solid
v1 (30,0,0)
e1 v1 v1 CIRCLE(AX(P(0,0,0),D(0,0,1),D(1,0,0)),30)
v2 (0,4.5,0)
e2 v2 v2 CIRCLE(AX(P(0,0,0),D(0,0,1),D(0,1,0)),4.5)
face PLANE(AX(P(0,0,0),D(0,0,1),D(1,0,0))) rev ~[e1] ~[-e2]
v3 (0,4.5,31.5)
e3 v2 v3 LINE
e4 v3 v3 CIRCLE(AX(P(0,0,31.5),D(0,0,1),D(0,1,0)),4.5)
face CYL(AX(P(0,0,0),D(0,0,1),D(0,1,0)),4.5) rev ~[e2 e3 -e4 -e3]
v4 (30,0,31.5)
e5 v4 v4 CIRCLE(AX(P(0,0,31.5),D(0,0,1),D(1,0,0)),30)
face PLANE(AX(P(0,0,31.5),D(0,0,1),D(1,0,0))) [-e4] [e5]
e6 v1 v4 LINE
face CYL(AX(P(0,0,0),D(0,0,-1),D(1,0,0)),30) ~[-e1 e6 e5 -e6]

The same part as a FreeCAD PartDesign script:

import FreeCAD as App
import Part
import Sketcher
from FreeCAD import Vector

doc = App.newDocument("Part")
body = doc.addObject("PartDesign::Body", "Body")

# Sketch on XY plane
sketch1 = body.newObject("Sketcher::SketchObject", "Sketch")
sketch1.AttachmentSupport = (doc.getObject("XY_Plane"), [""])
sketch1.MapMode = "FlatFace"
sketch1.addGeometry(Part.Circle(Vector(0, 0, 0), Vector(0, 0, 1), 30), False)
sketch1.addConstraint(Sketcher.Constraint("Coincident", 0, 3, -1, 1))
sketch1.addConstraint(Sketcher.Constraint("Diameter", 0, 60.0))
pad1 = body.newObject("PartDesign::Pad", "Pad")
pad1.Profile = sketch1
pad1.Length = 31.5

# Sketch on XY plane
sketch2 = body.newObject("Sketcher::SketchObject", "Sketch001")
sketch2.AttachmentSupport = (doc.getObject("XY_Plane"), [""])
sketch2.MapMode = "FlatFace"
sketch2.addGeometry(Part.Circle(Vector(0, 0, 0), Vector(0, 0, 1), 4.5), False)
sketch2.addConstraint(Sketcher.Constraint("Coincident", 0, 3, -1, 1))
sketch2.addConstraint(Sketcher.Constraint("Diameter", 0, 9.0))
doc.recompute()
hole = body.newObject("PartDesign::Hole", "Hole")
hole.Profile = sketch2
hole.ThreadType = "None"
hole.Diameter = 9
hole.DepthType = "ThroughAll"
hole.Reversed = True

doc.recompute()
